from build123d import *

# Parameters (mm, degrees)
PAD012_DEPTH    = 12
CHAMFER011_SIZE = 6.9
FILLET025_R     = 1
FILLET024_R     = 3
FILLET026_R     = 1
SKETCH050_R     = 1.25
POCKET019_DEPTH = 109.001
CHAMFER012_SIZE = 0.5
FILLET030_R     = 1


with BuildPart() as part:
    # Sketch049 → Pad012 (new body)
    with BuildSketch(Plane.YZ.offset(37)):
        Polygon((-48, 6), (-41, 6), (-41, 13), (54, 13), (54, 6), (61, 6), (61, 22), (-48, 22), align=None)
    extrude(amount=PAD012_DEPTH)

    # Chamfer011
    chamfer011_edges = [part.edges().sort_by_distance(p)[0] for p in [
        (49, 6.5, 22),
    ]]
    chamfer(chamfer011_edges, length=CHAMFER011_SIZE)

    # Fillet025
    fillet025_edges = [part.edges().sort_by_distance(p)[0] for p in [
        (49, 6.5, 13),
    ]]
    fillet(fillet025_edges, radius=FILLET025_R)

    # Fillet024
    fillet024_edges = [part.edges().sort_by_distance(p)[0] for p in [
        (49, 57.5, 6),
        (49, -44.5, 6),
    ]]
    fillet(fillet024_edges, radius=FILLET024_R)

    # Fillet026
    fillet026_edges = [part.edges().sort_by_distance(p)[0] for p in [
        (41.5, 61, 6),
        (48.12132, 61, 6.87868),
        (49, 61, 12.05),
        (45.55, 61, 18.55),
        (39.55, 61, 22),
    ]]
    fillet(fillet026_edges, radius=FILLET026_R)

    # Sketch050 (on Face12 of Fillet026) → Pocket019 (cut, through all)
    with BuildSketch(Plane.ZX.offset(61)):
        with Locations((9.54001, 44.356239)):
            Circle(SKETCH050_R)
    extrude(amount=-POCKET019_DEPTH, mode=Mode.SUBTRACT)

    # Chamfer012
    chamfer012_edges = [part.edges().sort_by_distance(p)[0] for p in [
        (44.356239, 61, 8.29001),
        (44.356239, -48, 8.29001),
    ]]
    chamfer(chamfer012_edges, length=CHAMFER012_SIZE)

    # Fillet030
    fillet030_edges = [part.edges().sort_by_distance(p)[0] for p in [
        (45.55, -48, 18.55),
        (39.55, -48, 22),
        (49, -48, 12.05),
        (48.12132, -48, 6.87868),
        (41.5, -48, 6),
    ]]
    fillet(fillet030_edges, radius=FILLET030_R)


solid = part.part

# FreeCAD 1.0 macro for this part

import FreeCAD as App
import Part
import Sketcher

V = App.Vector


def edges_at(feature, points):
    """Names of the edges that pass closest to the given points."""
    edges = feature.Shape.Edges
    near = lambda p: min(range(len(edges)), key=lambda i: edges[i].distToShape(Part.Vertex(*p))[0])
    return sorted({f"Edge{near(p) + 1}" for p in points})

doc = App.newDocument("Part")
body = doc.addObject("PartDesign::Body", "Body")

# Sketch on YZ plane
sketch1 = body.newObject("Sketcher::SketchObject", "Sketch")
sketch1.AttachmentSupport = (doc.getObject("YZ_Plane"), [""])
sketch1.MapMode = "FlatFace"
sketch1.AttachmentOffset = App.Placement(V(0, 0, 37), App.Rotation())
sketch1.addGeometry([
    Part.LineSegment(V(-48, 6, 0), V(-41, 6, 0)),  # 0
    Part.LineSegment(V(-41, 6, 0), V(-41, 13, 0)),  # 1
    Part.LineSegment(V(-41, 13, 0), V(54, 13, 0)),  # 2
    Part.LineSegment(V(54, 13, 0), V(54, 6, 0)),  # 3
    Part.LineSegment(V(54, 6, 0), V(61, 6, 0)),  # 4
    Part.LineSegment(V(61, 6, 0), V(61, 22, 0)),  # 5
    Part.LineSegment(V(61, 22, 0), V(-48, 22, 0)),  # 6
    Part.LineSegment(V(-48, 22, 0), V(-48, 6, 0)),  # 7
], False)
sketch1.addConstraint([
    Sketcher.Constraint("Coincident", 0, 2, 1, 1),
    Sketcher.Constraint("Coincident", 1, 2, 2, 1),
    Sketcher.Constraint("Coincident", 2, 2, 3, 1),
    Sketcher.Constraint("Coincident", 3, 2, 4, 1),
    Sketcher.Constraint("Coincident", 4, 2, 5, 1),
    Sketcher.Constraint("Coincident", 5, 2, 6, 1),
    Sketcher.Constraint("Coincident", 6, 2, 7, 1),
    Sketcher.Constraint("Coincident", 7, 2, 0, 1),
    Sketcher.Constraint("Horizontal", 0),
    Sketcher.Constraint("Vertical", 1),
    Sketcher.Constraint("Horizontal", 2),
    Sketcher.Constraint("Vertical", 3),
    Sketcher.Constraint("Horizontal", 4),
    Sketcher.Constraint("Vertical", 5),
    Sketcher.Constraint("Horizontal", 6),
    Sketcher.Constraint("Vertical", 7),
    Sketcher.Constraint("Horizontal", 0, 2, 3, 2),
    Sketcher.Constraint("Equal", 0, 4),
    Sketcher.Constraint("Equal", 4, 1),
    Sketcher.Constraint("DistanceX", 0, 1, 0, 2, 7.0),
    Sketcher.Constraint("DistanceX", 2, 1, 2, 2, 95.0),
    Sketcher.Constraint("DistanceY", 5, 1, 5, 2, 16.0),
    Sketcher.Constraint("DistanceX", 0, 2, -1, 1, 41.0),
    Sketcher.Constraint("DistanceY", -1, 1, 0, 2, 6.0),
])
pad1 = body.newObject("PartDesign::Pad", "Pad")
pad1.Profile = sketch1
pad1.Length = 12
doc.recompute()

chamfer = body.newObject("PartDesign::Chamfer", "Chamfer")
chamfer.Base = (pad1, edges_at(pad1, [(49, 6.5, 22)]))
chamfer.Size = 6.9
doc.recompute()

fillet = body.newObject("PartDesign::Fillet", "Fillet")
fillet.Base = (chamfer, edges_at(chamfer, [(49, 6.5, 13)]))
fillet.Radius = 1
doc.recompute()

fillet2 = body.newObject("PartDesign::Fillet", "Fillet001")
fillet2.Base = (fillet, edges_at(fillet, [(49, 57.5, 6), (49, -44.5, 6)]))
fillet2.Radius = 3
doc.recompute()

fillet3 = body.newObject("PartDesign::Fillet", "Fillet002")
fillet3.Base = (fillet2, edges_at(fillet2, [
    (41.5, 61, 6),
    (48.121, 61, 6.879),
    (49, 61, 12.05),
    (45.55, 61, 18.55),
    (39.55, 61, 22),
]))
fillet3.Radius = 1

# Sketch on XZ plane
sketch2 = body.newObject("Sketcher::SketchObject", "Sketch001")
sketch2.AttachmentSupport = (doc.getObject("XZ_Plane"), [""])
sketch2.MapMode = "FlatFace"
sketch2.AttachmentOffset = App.Placement(V(0, 0, -61), App.Rotation())
sketch2.addGeometry(Part.Circle(V(44.356239, 9.54001, 0), V(0, 0, 1), 1.25), False)
sketch2.addConstraint([
    Sketcher.Constraint("Diameter", 0, 2.5),
    Sketcher.Constraint("DistanceX", -1, 1, 0, 3, 44.356239),
    Sketcher.Constraint("DistanceY", -1, 1, 0, 3, 9.54001),
])
pocket1 = body.newObject("PartDesign::Pocket", "Pocket")
pocket1.Profile = sketch2
pocket1.Type = "ThroughAll"
pocket1.Reversed = True
doc.recompute()

chamfer2 = body.newObject("PartDesign::Chamfer", "Chamfer001")
chamfer2.Base = (pocket1, edges_at(pocket1, [(44.356, 61, 8.29), (44.356, -48, 8.29)]))
chamfer2.Size = 0.5
doc.recompute()

fillet4 = body.newObject("PartDesign::Fillet", "Fillet003")
fillet4.Base = (chamfer2, edges_at(chamfer2, [
    (45.55, -48, 18.55),
    (39.55, -48, 22),
    (49, -48, 12.05),
    (48.121, -48, 6.879),
    (41.5, -48, 6),
]))
fillet4.Radius = 1

doc.recompute()
